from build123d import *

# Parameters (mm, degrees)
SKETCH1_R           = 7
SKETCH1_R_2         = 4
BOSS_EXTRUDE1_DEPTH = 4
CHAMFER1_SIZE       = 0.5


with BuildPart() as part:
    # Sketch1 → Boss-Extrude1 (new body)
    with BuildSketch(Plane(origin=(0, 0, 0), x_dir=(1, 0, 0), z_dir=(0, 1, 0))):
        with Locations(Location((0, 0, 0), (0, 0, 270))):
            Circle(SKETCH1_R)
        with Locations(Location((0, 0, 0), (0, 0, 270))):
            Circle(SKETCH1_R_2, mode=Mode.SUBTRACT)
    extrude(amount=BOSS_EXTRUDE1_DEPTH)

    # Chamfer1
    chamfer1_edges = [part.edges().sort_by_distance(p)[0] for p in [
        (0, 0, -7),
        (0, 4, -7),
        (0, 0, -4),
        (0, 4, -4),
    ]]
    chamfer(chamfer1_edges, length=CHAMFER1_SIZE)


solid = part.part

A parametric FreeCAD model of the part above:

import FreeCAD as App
import Part
import Sketcher

V = App.Vector


def edges_at(feature, points):
    """Names of the edges that pass closest to the given points."""
    edges = feature.Shape.Edges
    near = lambda p: min(range(len(edges)), key=lambda i: edges[i].distToShape(Part.Vertex(*p))[0])
    return sorted({f"Edge{near(p) + 1}" for p in points})

doc = App.newDocument("Part")
params = doc.addObject("Spreadsheet::Sheet", "Params")
for row, (alias, value) in enumerate([
    ("sketch1_diameter", "14 mm"),
    ("sketch1_diameter2", "8 mm"),
    ("pad1_length", "4 mm"),
    ("chamfer_size", "0.5 mm"),
], start=1):
    params.set(f"A{row}", alias)
    params.set(f"B{row}", "=" + value)
    params.setAlias(f"B{row}", alias)

body = doc.addObject("PartDesign::Body", "Body")

sketch1 = body.newObject("Sketcher::SketchObject", "Sketch")
sketch1.AttachmentSupport = (doc.getObject("XZ_Plane"), [""])
sketch1.MapMode = "FlatFace"
sketch1.addGeometry(Part.Circle(V(0, 0, 0), V(0, 0, 1), 7), False)
sketch1.addGeometry(Part.Circle(V(0, 0, 0), V(0, 0, 1), 4), False)
sketch1.addConstraint(Sketcher.Constraint("Coincident", 0, 3, -1, 1))
sketch1.addConstraint(Sketcher.Constraint("Coincident", 1, 3, -1, 1))
sketch1.addConstraint(Sketcher.Constraint("Diameter", 0, 14.0))
sketch1.addConstraint(Sketcher.Constraint("Diameter", 1, 8.0))
sketch1.setExpression("Constraints[2]", "Params.sketch1_diameter")
sketch1.setExpression("Constraints[3]", "Params.sketch1_diameter2")
pad1 = body.newObject("PartDesign::Pad", "Pad")
pad1.Profile = sketch1
pad1.setExpression("Length", "Params.pad1_length")
pad1.Reversed = True
doc.recompute()

chamfer = body.newObject("PartDesign::Chamfer", "Chamfer")
chamfer.Base = (pad1, edges_at(pad1, [
    (0, 0, -7),
    (0, 4, -7),
    (0, 0, -4),
    (0, 4, -4),
]))
chamfer.setExpression("Size", "Params.chamfer_size")

doc.recompute()
